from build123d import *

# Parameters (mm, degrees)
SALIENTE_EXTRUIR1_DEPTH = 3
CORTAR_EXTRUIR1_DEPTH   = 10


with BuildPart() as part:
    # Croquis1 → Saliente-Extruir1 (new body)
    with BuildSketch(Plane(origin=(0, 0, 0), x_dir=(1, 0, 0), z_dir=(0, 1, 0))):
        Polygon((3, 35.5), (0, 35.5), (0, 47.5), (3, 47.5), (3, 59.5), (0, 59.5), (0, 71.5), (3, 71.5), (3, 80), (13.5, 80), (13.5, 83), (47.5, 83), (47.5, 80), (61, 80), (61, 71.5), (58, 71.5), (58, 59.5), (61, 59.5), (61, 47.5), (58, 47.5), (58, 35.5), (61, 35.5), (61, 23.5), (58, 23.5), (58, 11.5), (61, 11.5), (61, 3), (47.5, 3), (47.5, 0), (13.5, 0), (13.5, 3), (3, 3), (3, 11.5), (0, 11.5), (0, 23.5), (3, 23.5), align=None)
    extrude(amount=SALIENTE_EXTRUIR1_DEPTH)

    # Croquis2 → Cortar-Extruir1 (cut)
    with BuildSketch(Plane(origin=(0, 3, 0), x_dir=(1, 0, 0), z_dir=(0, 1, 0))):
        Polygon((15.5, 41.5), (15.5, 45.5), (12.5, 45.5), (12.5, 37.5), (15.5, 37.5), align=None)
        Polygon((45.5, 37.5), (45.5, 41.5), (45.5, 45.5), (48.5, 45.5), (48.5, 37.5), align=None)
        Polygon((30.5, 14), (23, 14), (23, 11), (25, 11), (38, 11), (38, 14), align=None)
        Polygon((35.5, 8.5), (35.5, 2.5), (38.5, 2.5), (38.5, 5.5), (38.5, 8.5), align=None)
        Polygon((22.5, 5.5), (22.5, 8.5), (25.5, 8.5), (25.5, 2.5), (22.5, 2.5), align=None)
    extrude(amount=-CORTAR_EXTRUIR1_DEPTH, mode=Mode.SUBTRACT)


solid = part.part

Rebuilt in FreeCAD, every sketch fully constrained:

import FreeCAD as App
import Part
import Sketcher

doc = App.newDocument("Part")
params = doc.addObject("Spreadsheet::Sheet", "Params")
for row, (alias, value) in enumerate([
    ("sketch1_width", "3 mm"),
    ("sketch1_width2", "34 mm"),
    ("sketch1_height", "12 mm"),
    ("sketch1_width3", "10.5 mm"),
    ("sketch1_width4", "13.5 mm"),
    ("pad1_length", "3 mm"),
    ("sketch2_width", "3 mm"),
    ("sketch2_width2", "15 mm"),
    ("sketch2_height", "8 mm"),
    ("sketch2_height2", "6 mm"),
    ("pocket1_length", "10 mm"),
], start=1):
    params.set(f"A{row}", alias)
    params.set(f"B{row}", "=" + value)
    params.setAlias(f"B{row}", alias)

body = doc.addObject("PartDesign::Body", "Body")

# Sketch on XZ plane
sketch1 = body.newObject("Sketcher::SketchObject", "Sketch")
sketch1.AttachmentSupport = (doc.getObject("XZ_Plane"), [""])
sketch1.MapMode = "FlatFace"
sketch1.addGeometry([
    Part.LineSegment(App.Vector(0, -35.5, 0), App.Vector(3, -35.5, 0)),  # 0
    Part.LineSegment(App.Vector(3, -35.5, 0), App.Vector(3, -23.5, 0)),  # 1
    Part.LineSegment(App.Vector(3, -23.5, 0), App.Vector(0, -23.5, 0)),  # 2
    Part.LineSegment(App.Vector(0, -23.5, 0), App.Vector(0, -11.5, 0)),  # 3
    Part.LineSegment(App.Vector(0, -11.5, 0), App.Vector(3, -11.5, 0)),  # 4
    Part.LineSegment(App.Vector(3, -11.5, 0), App.Vector(3, -3, 0)),  # 5
    Part.LineSegment(App.Vector(3, -3, 0), App.Vector(13.5, -3, 0)),  # 6
    Part.LineSegment(App.Vector(13.5, -3, 0), App.Vector(13.5, 0, 0)),  # 7
    Part.LineSegment(App.Vector(13.5, 0, 0), App.Vector(47.5, 0, 0)),  # 8
    Part.LineSegment(App.Vector(47.5, 0, 0), App.Vector(47.5, -3, 0)),  # 9
    Part.LineSegment(App.Vector(47.5, -3, 0), App.Vector(61, -3, 0)),  # 10
    Part.LineSegment(App.Vector(61, -3, 0), App.Vector(61, -11.5, 0)),  # 11
    Part.LineSegment(App.Vector(61, -11.5, 0), App.Vector(58, -11.5, 0)),  # 12
    Part.LineSegment(App.Vector(58, -11.5, 0), App.Vector(58, -23.5, 0)),  # 13
    Part.LineSegment(App.Vector(58, -23.5, 0), App.Vector(61, -23.5, 0)),  # 14
    Part.LineSegment(App.Vector(61, -23.5, 0), App.Vector(61, -35.5, 0)),  # 15
    Part.LineSegment(App.Vector(61, -35.5, 0), App.Vector(58, -35.5, 0)),  # 16
    Part.LineSegment(App.Vector(58, -35.5, 0), App.Vector(58, -47.5, 0)),  # 17
    Part.LineSegment(App.Vector(58, -47.5, 0), App.Vector(61, -47.5, 0)),  # 18
    Part.LineSegment(App.Vector(61, -47.5, 0), App.Vector(61, -59.5, 0)),  # 19
    Part.LineSegment(App.Vector(61, -59.5, 0), App.Vector(58, -59.5, 0)),  # 20
    Part.LineSegment(App.Vector(58, -59.5, 0), App.Vector(58, -71.5, 0)),  # 21
    Part.LineSegment(App.Vector(58, -71.5, 0), App.Vector(61, -71.5, 0)),  # 22
    Part.LineSegment(App.Vector(61, -71.5, 0), App.Vector(61, -80, 0)),  # 23
    Part.LineSegment(App.Vector(61, -80, 0), App.Vector(47.5, -80, 0)),  # 24
    Part.LineSegment(App.Vector(47.5, -80, 0), App.Vector(47.5, -83, 0)),  # 25
    Part.LineSegment(App.Vector(47.5, -83, 0), App.Vector(13.5, -83, 0)),  # 26
    Part.LineSegment(App.Vector(13.5, -83, 0), App.Vector(13.5, -80, 0)),  # 27
    Part.LineSegment(App.Vector(13.5, -80, 0), App.Vector(3, -80, 0)),  # 28
    Part.LineSegment(App.Vector(3, -80, 0), App.Vector(3, -71.5, 0)),  # 29
    Part.LineSegment(App.Vector(3, -71.5, 0), App.Vector(0, -71.5, 0)),  # 30
    Part.LineSegment(App.Vector(0, -71.5, 0), App.Vector(0, -59.5, 0)),  # 31
    Part.LineSegment(App.Vector(0, -59.5, 0), App.Vector(3, -59.5, 0)),  # 32
    Part.LineSegment(App.Vector(3, -59.5, 0), App.Vector(3, -47.5, 0)),  # 33
    Part.LineSegment(App.Vector(3, -47.5, 0), App.Vector(0, -47.5, 0)),  # 34
    Part.LineSegment(App.Vector(0, -47.5, 0), App.Vector(0, -35.5, 0)),  # 35
], False)
sketch1.addConstraint([
    Sketcher.Constraint("Coincident", 0, 2, 1, 1),
    Sketcher.Constraint("Coincident", 1, 2, 2, 1),
    Sketcher.Constraint("Coincident", 2, 2, 3, 1),
    Sketcher.Constraint("Coincident", 3, 2, 4, 1),
    Sketcher.Constraint("Coincident", 4, 2, 5, 1),
    Sketcher.Constraint("Coincident", 5, 2, 6, 1),
    Sketcher.Constraint("Coincident", 6, 2, 7, 1),
    Sketcher.Constraint("Coincident", 7, 2, 8, 1),
    Sketcher.Constraint("Coincident", 8, 2, 9, 1),
    Sketcher.Constraint("Coincident", 9, 2, 10, 1),
    Sketcher.Constraint("Coincident", 10, 2, 11, 1),
    Sketcher.Constraint("Coincident", 11, 2, 12, 1),
    Sketcher.Constraint("Coincident", 12, 2, 13, 1),
    Sketcher.Constraint("Coincident", 13, 2, 14, 1),
    Sketcher.Constraint("Coincident", 14, 2, 15, 1),
    Sketcher.Constraint("Coincident", 15, 2, 16, 1),
    Sketcher.Constraint("Coincident", 16, 2, 17, 1),
    Sketcher.Constraint("Coincident", 17, 2, 18, 1),
    Sketcher.Constraint("Coincident", 18, 2, 19, 1),
    Sketcher.Constraint("Coincident", 19, 2, 20, 1),
    Sketcher.Constraint("Coincident", 20, 2, 21, 1),
    Sketcher.Constraint("Coincident", 21, 2, 22, 1),
    Sketcher.Constraint("Coincident", 22, 2, 23, 1),
    Sketcher.Constraint("Coincident", 23, 2, 24, 1),
    Sketcher.Constraint("Coincident", 24, 2, 25, 1),
    Sketcher.Constraint("Coincident", 25, 2, 26, 1),
    Sketcher.Constraint("Coincident", 26, 2, 27, 1),
    Sketcher.Constraint("Coincident", 27, 2, 28, 1),
    Sketcher.Constraint("Coincident", 28, 2, 29, 1),
    Sketcher.Constraint("Coincident", 29, 2, 30, 1),
    Sketcher.Constraint("Coincident", 30, 2, 31, 1),
    Sketcher.Constraint("Coincident", 31, 2, 32, 1),
    Sketcher.Constraint("Coincident", 32, 2, 33, 1),
    Sketcher.Constraint("Coincident", 33, 2, 34, 1),
    Sketcher.Constraint("Coincident", 34, 2, 35, 1),
    Sketcher.Constraint("Coincident", 35, 2, 0, 1),
    Sketcher.Constraint("Horizontal", 0),
    Sketcher.Constraint("Vertical", 1),
    Sketcher.Constraint("Horizontal", 2),
    Sketcher.Constraint("Vertical", 3),
    Sketcher.Constraint("Horizontal", 4),
    Sketcher.Constraint("Vertical", 5),
    Sketcher.Constraint("Horizontal", 6),
    Sketcher.Constraint("Vertical", 7),
    Sketcher.Constraint("Horizontal", 8),
    Sketcher.Constraint("Vertical", 9),
    Sketcher.Constraint("Horizontal", 10),
    Sketcher.Constraint("Vertical", 11),
    Sketcher.Constraint("Horizontal", 12),
    Sketcher.Constraint("Vertical", 13),
    Sketcher.Constraint("Horizontal", 14),
    Sketcher.Constraint("Vertical", 15),
    Sketcher.Constraint("Horizontal", 16),
    Sketcher.Constraint("Vertical", 17),
    Sketcher.Constraint("Horizontal", 18),
    Sketcher.Constraint("Vertical", 19),
    Sketcher.Constraint("Horizontal", 20),
    Sketcher.Constraint("Vertical", 21),
    Sketcher.Constraint("Horizontal", 22),
    Sketcher.Constraint("Vertical", 23),
    Sketcher.Constraint("Horizontal", 24),
    Sketcher.Constraint("Vertical", 25),
    Sketcher.Constraint("Horizontal", 26),
    Sketcher.Constraint("Vertical", 27),
    Sketcher.Constraint("Horizontal", 28),
    Sketcher.Constraint("Vertical", 29),
    Sketcher.Constraint("Horizontal", 30),
    Sketcher.Constraint("Vertical", 31),
    Sketcher.Constraint("Horizontal", 32),
    Sketcher.Constraint("Vertical", 33),
    Sketcher.Constraint("Horizontal", 34),
    Sketcher.Constraint("Vertical", 35),
    Sketcher.Constraint("PointOnObject", 2, 2, -2),
    Sketcher.Constraint("PointOnObject", 7, 2, -1),
    Sketcher.Constraint("PointOnObject", 30, 2, -2),
    Sketcher.Constraint("PointOnObject", 34, 2, -2),
    Sketcher.Constraint("Horizontal", 6, 2, 9, 2),
    Sketcher.Constraint("Horizontal", 4, 2, 11, 2),
    Sketcher.Constraint("Horizontal", 2, 2, 13, 2),
    Sketcher.Constraint("Horizontal", 0, 2, 15, 2),
    Sketcher.Constraint("Horizontal", 24, 2, 27, 2),
    Sketcher.Constraint("Horizontal", 22, 2, 29, 2),
    Sketcher.Constraint("Horizontal", 20, 2, 31, 2),
    Sketcher.Constraint("Horizontal", 18, 2, 33, 2),
    Sketcher.Constraint("Vertical", 1, 2, 4, 2),
    Sketcher.Constraint("Vertical", 11, 2, 14, 2),
    Sketcher.Constraint("Vertical", 13, 2, 16, 2),
    Sketcher.Constraint("Vertical", 15, 2, 18, 2),
    Sketcher.Constraint("Vertical", 17, 2, 20, 2),
    Sketcher.Constraint("Vertical", 19, 2, 22, 2),
    Sketcher.Constraint("Vertical", 9, 2, 24, 2),
    Sketcher.Constraint("Vertical", 7, 2, 26, 2),
    Sketcher.Constraint("Vertical", 5, 2, 28, 2),
    Sketcher.Constraint("Vertical", 29, 2, 32, 2),
    Sketcher.Constraint("Equal", 4, 12),
    Sketcher.Constraint("Equal", 1, 3),
    Sketcher.Constraint("Equal", 34, 7),
    Sketcher.Constraint("Equal", 15, 17),
    Sketcher.Constraint("Equal", 17, 19),
    Sketcher.Constraint("Equal", 19, 21),
    Sketcher.Constraint("Equal", 11, 23),
    Sketcher.Constraint("Equal", 9, 25),
    Sketcher.Constraint("DistanceX", 0, 1, 0, 2, 3.0),
    Sketcher.Constraint("DistanceX", 8, 1, 8, 2, 34.0),
    Sketcher.Constraint("DistanceY", 1, 1, 1, 2, 12.0),
    Sketcher.Constraint("DistanceX", 6, 1, 6, 2, 10.5),
    Sketcher.Constraint("DistanceX", 10, 1, 10, 2, 13.5),
    Sketcher.Constraint("DistanceY", 5, 1, 5, 2, 8.5),
])
sketch1.setExpression("Constraints[102]", "Params.sketch1_width")
sketch1.setExpression("Constraints[103]", "Params.sketch1_width2")
sketch1.setExpression("Constraints[104]", "Params.sketch1_height")
sketch1.setExpression("Constraints[105]", "Params.sketch1_width3")
sketch1.setExpression("Constraints[106]", "Params.sketch1_width4")
pad1 = body.newObject("PartDesign::Pad", "Pad")
pad1.Profile = sketch1
pad1.setExpression("Length", "Params.pad1_length")
pad1.Reversed = True

# Sketch on XZ plane
sketch2 = body.newObject("Sketcher::SketchObject", "Sketch001")
sketch2.AttachmentSupport = (doc.getObject("XZ_Plane"), [""])
sketch2.MapMode = "FlatFace"
sketch2.AttachmentOffset = App.Placement(App.Vector(0, 0, -3), App.Rotation())
sketch2.addGeometry([
    Part.LineSegment(App.Vector(15.5, -45.5, 0), App.Vector(12.5, -45.5, 0)),  # 0
    Part.LineSegment(App.Vector(12.5, -45.5, 0), App.Vector(12.5, -37.5, 0)),  # 1
    Part.LineSegment(App.Vector(12.5, -37.5, 0), App.Vector(15.5, -37.5, 0)),  # 2
    Part.LineSegment(App.Vector(15.5, -37.5, 0), App.Vector(15.5, -45.5, 0)),  # 3
    Part.LineSegment(App.Vector(45.5, -45.5, 0), App.Vector(45.5, -37.5, 0)),  # 4
    Part.LineSegment(App.Vector(45.5, -37.5, 0), App.Vector(48.5, -37.5, 0)),  # 5
    Part.LineSegment(App.Vector(48.5, -37.5, 0), App.Vector(48.5, -45.5, 0)),  # 6
    Part.LineSegment(App.Vector(48.5, -45.5, 0), App.Vector(45.5, -45.5, 0)),  # 7
    Part.LineSegment(App.Vector(23, -14, 0), App.Vector(23, -11, 0)),  # 8
    Part.LineSegment(App.Vector(23, -11, 0), App.Vector(38, -11, 0)),  # 9
    Part.LineSegment(App.Vector(38, -11, 0), App.Vector(38, -14, 0)),  # 10
    Part.LineSegment(App.Vector(38, -14, 0), App.Vector(23, -14, 0)),  # 11
    Part.LineSegment(App.Vector(35.5, -8.5, 0), App.Vector(35.5, -2.5, 0)),  # 12
    Part.LineSegment(App.Vector(35.5, -2.5, 0), App.Vector(38.5, -2.5, 0)),  # 13
    Part.LineSegment(App.Vector(38.5, -2.5, 0), App.Vector(38.5, -8.5, 0)),  # 14
    Part.LineSegment(App.Vector(38.5, -8.5, 0), App.Vector(35.5, -8.5, 0)),  # 15
    Part.LineSegment(App.Vector(22.5, -8.5, 0), App.Vector(22.5, -2.5, 0)),  # 16
    Part.LineSegment(App.Vector(22.5, -2.5, 0), App.Vector(25.5, -2.5, 0)),  # 17
    Part.LineSegment(App.Vector(25.5, -2.5, 0), App.Vector(25.5, -8.5, 0)),  # 18
    Part.LineSegment(App.Vector(25.5, -8.5, 0), App.Vector(22.5, -8.5, 0)),  # 19
], False)
sketch2.addConstraint([
    Sketcher.Constraint("Coincident", 0, 2, 1, 1),
    Sketcher.Constraint("Coincident", 1, 2, 2, 1),
    Sketcher.Constraint("Coincident", 2, 2, 3, 1),
    Sketcher.Constraint("Coincident", 3, 2, 0, 1),
    Sketcher.Constraint("Coincident", 4, 2, 5, 1),
    Sketcher.Constraint("Coincident", 5, 2, 6, 1),
    Sketcher.Constraint("Coincident", 6, 2, 7, 1),
    Sketcher.Constraint("Coincident", 7, 2, 4, 1),
    Sketcher.Constraint("Coincident", 8, 2, 9, 1),
    Sketcher.Constraint("Coincident", 9, 2, 10, 1),
    Sketcher.Constraint("Coincident", 10, 2, 11, 1),
    Sketcher.Constraint("Coincident", 11, 2, 8, 1),
    Sketcher.Constraint("Coincident", 12, 2, 13, 1),
    Sketcher.Constraint("Coincident", 13, 2, 14, 1),
    Sketcher.Constraint("Coincident", 14, 2, 15, 1),
    Sketcher.Constraint("Coincident", 15, 2, 12, 1),
    Sketcher.Constraint("Coincident", 16, 2, 17, 1),
    Sketcher.Constraint("Coincident", 17, 2, 18, 1),
    Sketcher.Constraint("Coincident", 18, 2, 19, 1),
    Sketcher.Constraint("Coincident", 19, 2, 16, 1),
    Sketcher.Constraint("Horizontal", 0),
    Sketcher.Constraint("Vertical", 1),
    Sketcher.Constraint("Horizontal", 2),
    Sketcher.Constraint("Vertical", 3),
    Sketcher.Constraint("Vertical", 4),
    Sketcher.Constraint("Horizontal", 5),
    Sketcher.Constraint("Vertical", 6),
    Sketcher.Constraint("Horizontal", 7),
    Sketcher.Constraint("Vertical", 8),
    Sketcher.Constraint("Horizontal", 9),
    Sketcher.Constraint("Vertical", 10),
    Sketcher.Constraint("Horizontal", 11),
    Sketcher.Constraint("Vertical", 12),
    Sketcher.Constraint("Horizontal", 13),
    Sketcher.Constraint("Vertical", 14),
    Sketcher.Constraint("Horizontal", 15),
    Sketcher.Constraint("Vertical", 16),
    Sketcher.Constraint("Horizontal", 17),
    Sketcher.Constraint("Vertical", 18),
    Sketcher.Constraint("Horizontal", 19),
    Sketcher.Constraint("Horizontal", 2, 2, 4, 2),
    Sketcher.Constraint("Horizontal", 3, 2, 6, 2),
    Sketcher.Constraint("Horizontal", 13, 2, 16, 2),
    Sketcher.Constraint("Horizontal", 15, 2, 18, 2),
    Sketcher.Constraint("Equal", 2, 5),
    Sketcher.Constraint("Equal", 7, 13),
    Sketcher.Constraint("Equal", 15, 17),
    Sketcher.Constraint("Equal", 19, 8),
    Sketcher.Constraint("DistanceX", 0, 2, 0, 1, 3.0),
    Sketcher.Constraint("DistanceX", 9, 1, 9, 2, 15.0),
    Sketcher.Constraint("DistanceY", 1, 1, 1, 2, 8.0),
    Sketcher.Constraint("DistanceY", 12, 1, 12, 2, 6.0),
    Sketcher.Constraint("DistanceX", -1, 1, 8, 2, 23.0),
    Sketcher.Constraint("DistanceY", 8, 2, -1, 1, 11.0),
    Sketcher.Constraint("DistanceX", 2, 2, 4, 2, 30.0),
    Sketcher.Constraint("DistanceX", 12, 2, 4, 2, 10.0),
    Sketcher.Constraint("DistanceY", 4, 2, 12, 2, 35.0),
    Sketcher.Constraint("DistanceX", 16, 2, 12, 2, 13.0),
    Sketcher.Constraint("DistanceX", -1, 1, 0, 2, 12.5),
    Sketcher.Constraint("DistanceY", 0, 2, -1, 1, 45.5),
])
sketch2.setExpression("Constraints[48]", "Params.sketch2_width")
sketch2.setExpression("Constraints[49]", "Params.sketch2_width2")
sketch2.setExpression("Constraints[50]", "Params.sketch2_height")
sketch2.setExpression("Constraints[51]", "Params.sketch2_height2")
pocket1 = body.newObject("PartDesign::Pocket", "Pocket")
pocket1.Profile = sketch2
pocket1.setExpression("Length", "Params.pocket1_length")
pocket1.Reversed = True

doc.recompute()
